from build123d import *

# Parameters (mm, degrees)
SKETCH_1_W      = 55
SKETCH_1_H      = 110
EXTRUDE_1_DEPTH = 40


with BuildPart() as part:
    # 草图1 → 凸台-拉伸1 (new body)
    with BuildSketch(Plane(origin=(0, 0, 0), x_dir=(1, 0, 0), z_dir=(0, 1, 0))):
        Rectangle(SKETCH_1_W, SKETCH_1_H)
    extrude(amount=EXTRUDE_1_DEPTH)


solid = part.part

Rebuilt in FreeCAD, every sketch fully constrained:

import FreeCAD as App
import Part
import Sketcher
from FreeCAD import Vector

doc = App.newDocument("Part")
body = doc.addObject("PartDesign::Body", "Body")

# Sketch on XZ plane
sketch1 = doc.addObject("Sketcher::SketchObject", "Sketch")
body.addObject(sketch1)
sketch1.AttachmentSupport = (doc.XZ_Plane, [""])
sketch1.MapMode = "FlatFace"
sketch1.addGeometry(Part.LineSegment(Vector(-27.5, -55, 0), Vector(-27.5, 55, 0)), False)
sketch1.addGeometry(Part.LineSegment(Vector(-27.5, 55, 0), Vector(27.5, 55, 0)), False)
sketch1.addGeometry(Part.LineSegment(Vector(27.5, 55, 0), Vector(27.5, -55, 0)), False)
sketch1.addGeometry(Part.LineSegment(Vector(27.5, -55, 0), Vector(-27.5, -55, 0)), False)
sketch1.addConstraint(Sketcher.Constraint("Coincident", 0, 2, 1, 1))
sketch1.addConstraint(Sketcher.Constraint("Coincident", 1, 2, 2, 1))
sketch1.addConstraint(Sketcher.Constraint("Coincident", 2, 2, 3, 1))
sketch1.addConstraint(Sketcher.Constraint("Coincident", 3, 2, 0, 1))
sketch1.addConstraint(Sketcher.Constraint("Vertical", 0))
sketch1.addConstraint(Sketcher.Constraint("Horizontal", 1))
sketch1.addConstraint(Sketcher.Constraint("Vertical", 2))
sketch1.addConstraint(Sketcher.Constraint("Horizontal", 3))
sketch1.addConstraint(Sketcher.Constraint("Symmetric", 0, 2, 2, 2, -1, 1))
sketch1.addConstraint(Sketcher.Constraint("DistanceX", 1, 1, 1, 2, 55.0))
sketch1.addConstraint(Sketcher.Constraint("DistanceY", 0, 1, 0, 2, 110.0))
pad1 = doc.addObject("PartDesign::Pad", "Pad")
body.addObject(pad1)
pad1.Profile = sketch1
pad1.Length = 40
pad1.Reversed = True

doc.recompute()
